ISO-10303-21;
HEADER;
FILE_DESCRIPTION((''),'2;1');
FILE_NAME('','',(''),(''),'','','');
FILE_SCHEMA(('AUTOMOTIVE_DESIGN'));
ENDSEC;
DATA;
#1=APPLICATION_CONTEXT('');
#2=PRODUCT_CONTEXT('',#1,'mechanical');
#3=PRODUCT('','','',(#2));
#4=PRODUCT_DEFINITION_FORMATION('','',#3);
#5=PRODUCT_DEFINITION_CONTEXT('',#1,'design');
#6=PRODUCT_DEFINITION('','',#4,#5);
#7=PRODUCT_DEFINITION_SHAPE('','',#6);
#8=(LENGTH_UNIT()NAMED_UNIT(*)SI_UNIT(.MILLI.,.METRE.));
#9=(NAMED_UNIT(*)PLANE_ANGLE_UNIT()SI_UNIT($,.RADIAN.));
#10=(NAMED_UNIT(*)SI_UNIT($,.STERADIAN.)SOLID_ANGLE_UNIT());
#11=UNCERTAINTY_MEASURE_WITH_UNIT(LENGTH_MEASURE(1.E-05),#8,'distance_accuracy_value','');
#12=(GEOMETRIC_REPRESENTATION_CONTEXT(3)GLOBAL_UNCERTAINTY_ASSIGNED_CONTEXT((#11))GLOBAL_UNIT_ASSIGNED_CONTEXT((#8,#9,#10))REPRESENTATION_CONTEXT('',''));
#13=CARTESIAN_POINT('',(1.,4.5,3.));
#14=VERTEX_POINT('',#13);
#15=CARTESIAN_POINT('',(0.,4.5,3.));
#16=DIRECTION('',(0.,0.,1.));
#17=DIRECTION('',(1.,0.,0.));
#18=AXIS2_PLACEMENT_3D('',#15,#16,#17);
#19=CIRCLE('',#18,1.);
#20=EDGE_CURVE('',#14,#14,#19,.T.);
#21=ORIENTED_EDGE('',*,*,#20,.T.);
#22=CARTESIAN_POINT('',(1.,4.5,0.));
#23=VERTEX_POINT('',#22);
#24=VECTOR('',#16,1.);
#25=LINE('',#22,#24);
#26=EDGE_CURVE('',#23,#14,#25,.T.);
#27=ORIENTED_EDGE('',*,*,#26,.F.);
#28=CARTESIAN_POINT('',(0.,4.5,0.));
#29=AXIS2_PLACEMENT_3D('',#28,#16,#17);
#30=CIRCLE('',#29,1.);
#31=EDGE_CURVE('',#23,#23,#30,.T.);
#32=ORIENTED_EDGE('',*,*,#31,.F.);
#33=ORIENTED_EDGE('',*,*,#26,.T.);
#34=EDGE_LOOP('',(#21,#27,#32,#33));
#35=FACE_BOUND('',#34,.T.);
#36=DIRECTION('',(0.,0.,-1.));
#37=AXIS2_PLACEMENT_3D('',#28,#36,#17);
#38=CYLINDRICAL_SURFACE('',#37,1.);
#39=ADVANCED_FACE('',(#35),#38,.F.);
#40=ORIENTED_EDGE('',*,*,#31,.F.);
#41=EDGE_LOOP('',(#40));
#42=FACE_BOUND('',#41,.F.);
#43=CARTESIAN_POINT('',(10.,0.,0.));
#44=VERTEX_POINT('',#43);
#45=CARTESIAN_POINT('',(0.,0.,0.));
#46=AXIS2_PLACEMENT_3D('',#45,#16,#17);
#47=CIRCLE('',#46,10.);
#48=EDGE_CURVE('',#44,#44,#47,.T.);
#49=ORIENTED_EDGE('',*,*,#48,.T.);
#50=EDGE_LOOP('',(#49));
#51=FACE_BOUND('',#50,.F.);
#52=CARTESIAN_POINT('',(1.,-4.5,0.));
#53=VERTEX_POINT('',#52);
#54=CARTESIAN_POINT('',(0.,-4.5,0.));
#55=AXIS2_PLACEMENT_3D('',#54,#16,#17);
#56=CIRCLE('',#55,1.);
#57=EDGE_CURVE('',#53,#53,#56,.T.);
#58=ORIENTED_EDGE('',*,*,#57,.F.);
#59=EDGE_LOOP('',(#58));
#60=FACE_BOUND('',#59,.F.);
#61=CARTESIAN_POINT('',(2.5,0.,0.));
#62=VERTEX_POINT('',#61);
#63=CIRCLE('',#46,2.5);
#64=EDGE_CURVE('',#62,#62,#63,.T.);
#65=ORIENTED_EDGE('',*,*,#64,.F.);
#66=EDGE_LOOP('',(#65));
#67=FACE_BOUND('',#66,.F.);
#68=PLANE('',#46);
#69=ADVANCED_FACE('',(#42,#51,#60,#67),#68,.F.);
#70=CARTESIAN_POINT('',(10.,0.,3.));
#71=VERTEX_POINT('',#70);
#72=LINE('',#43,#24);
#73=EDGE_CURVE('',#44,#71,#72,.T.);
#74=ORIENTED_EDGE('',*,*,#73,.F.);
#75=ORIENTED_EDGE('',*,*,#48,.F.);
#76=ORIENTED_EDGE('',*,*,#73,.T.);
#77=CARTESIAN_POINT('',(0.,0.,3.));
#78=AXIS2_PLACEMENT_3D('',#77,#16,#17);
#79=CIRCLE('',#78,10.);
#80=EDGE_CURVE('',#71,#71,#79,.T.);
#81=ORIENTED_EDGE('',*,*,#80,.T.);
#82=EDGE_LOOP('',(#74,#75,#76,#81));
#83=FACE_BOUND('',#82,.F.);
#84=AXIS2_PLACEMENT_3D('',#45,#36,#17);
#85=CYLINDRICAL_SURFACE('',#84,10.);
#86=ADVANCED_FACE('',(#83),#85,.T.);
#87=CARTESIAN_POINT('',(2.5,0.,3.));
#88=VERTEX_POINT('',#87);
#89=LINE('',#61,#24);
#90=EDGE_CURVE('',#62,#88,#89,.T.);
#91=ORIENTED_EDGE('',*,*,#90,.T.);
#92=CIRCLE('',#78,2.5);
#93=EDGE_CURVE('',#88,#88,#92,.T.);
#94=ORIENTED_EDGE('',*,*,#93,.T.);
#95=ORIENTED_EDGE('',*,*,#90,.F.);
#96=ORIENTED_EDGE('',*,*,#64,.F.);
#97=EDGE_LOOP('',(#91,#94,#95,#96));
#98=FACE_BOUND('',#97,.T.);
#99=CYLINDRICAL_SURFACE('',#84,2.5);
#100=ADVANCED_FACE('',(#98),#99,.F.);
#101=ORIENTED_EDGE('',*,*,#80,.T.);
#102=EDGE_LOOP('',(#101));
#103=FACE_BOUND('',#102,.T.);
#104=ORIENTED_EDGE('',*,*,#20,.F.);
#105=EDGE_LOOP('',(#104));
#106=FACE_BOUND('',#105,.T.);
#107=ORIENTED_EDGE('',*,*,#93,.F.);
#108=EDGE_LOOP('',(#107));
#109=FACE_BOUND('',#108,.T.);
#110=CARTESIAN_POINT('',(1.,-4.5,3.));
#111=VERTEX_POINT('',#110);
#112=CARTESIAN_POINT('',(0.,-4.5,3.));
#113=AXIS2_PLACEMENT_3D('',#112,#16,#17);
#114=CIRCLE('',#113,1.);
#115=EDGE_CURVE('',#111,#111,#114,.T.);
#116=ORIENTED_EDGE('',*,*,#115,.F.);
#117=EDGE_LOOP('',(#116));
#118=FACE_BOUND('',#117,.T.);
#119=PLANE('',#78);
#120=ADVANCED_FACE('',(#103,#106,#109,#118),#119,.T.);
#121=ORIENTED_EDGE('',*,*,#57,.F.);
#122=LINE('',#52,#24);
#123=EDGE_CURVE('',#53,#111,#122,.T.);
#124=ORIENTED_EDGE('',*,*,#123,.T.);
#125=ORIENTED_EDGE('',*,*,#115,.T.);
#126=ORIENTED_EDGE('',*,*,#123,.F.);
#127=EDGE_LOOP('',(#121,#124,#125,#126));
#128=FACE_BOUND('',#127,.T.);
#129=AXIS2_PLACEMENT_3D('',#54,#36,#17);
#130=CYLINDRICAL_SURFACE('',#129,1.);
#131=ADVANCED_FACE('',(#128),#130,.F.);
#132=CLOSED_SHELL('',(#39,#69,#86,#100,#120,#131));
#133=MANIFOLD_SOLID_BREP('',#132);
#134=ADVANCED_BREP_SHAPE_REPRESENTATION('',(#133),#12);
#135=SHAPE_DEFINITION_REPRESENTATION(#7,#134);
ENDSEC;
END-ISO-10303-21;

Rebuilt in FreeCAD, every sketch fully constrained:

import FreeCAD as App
import Part
import Sketcher
from FreeCAD import Vector

doc = App.newDocument("Part")
body = doc.addObject("PartDesign::Body", "Body")

# Sketch on XY plane
sketch1 = body.newObject("Sketcher::SketchObject", "Sketch")
sketch1.AttachmentSupport = (doc.getObject("XY_Plane"), [""])
sketch1.MapMode = "FlatFace"
sketch1.addGeometry(Part.Circle(Vector(0, 0, 0), Vector(0, 0, 1), 10), False)
sketch1.addGeometry(Part.Circle(Vector(0, -4.5, 0), Vector(0, 0, 1), 1), False)
sketch1.addGeometry(Part.Circle(Vector(0, 0, 0), Vector(0, 0, 1), 2.5), False)
sketch1.addGeometry(Part.Circle(Vector(0, 4.5, 0), Vector(0, 0, 1), 1), False)
sketch1.addConstraint(Sketcher.Constraint("Coincident", 0, 3, -1, 1))
sketch1.addConstraint(Sketcher.Constraint("Coincident", 2, 3, -1, 1))
sketch1.addConstraint(Sketcher.Constraint("Equal", 1, 3))
sketch1.addConstraint(Sketcher.Constraint("Symmetric", 1, 3, 3, 3, -1, 1))
sketch1.addConstraint(Sketcher.Constraint("PointOnObject", 1, 3, -2))
sketch1.addConstraint(Sketcher.Constraint("Diameter", 0, 20.0))
sketch1.addConstraint(Sketcher.Constraint("Diameter", 1, 2.0))
sketch1.addConstraint(Sketcher.Constraint("Diameter", 2, 5.0))
sketch1.addConstraint(Sketcher.Constraint("DistanceY", 1, 3, 3, 3, 9.0))
pad1 = body.newObject("PartDesign::Pad", "Pad")
pad1.Profile = sketch1
pad1.Length = 3

doc.recompute()
